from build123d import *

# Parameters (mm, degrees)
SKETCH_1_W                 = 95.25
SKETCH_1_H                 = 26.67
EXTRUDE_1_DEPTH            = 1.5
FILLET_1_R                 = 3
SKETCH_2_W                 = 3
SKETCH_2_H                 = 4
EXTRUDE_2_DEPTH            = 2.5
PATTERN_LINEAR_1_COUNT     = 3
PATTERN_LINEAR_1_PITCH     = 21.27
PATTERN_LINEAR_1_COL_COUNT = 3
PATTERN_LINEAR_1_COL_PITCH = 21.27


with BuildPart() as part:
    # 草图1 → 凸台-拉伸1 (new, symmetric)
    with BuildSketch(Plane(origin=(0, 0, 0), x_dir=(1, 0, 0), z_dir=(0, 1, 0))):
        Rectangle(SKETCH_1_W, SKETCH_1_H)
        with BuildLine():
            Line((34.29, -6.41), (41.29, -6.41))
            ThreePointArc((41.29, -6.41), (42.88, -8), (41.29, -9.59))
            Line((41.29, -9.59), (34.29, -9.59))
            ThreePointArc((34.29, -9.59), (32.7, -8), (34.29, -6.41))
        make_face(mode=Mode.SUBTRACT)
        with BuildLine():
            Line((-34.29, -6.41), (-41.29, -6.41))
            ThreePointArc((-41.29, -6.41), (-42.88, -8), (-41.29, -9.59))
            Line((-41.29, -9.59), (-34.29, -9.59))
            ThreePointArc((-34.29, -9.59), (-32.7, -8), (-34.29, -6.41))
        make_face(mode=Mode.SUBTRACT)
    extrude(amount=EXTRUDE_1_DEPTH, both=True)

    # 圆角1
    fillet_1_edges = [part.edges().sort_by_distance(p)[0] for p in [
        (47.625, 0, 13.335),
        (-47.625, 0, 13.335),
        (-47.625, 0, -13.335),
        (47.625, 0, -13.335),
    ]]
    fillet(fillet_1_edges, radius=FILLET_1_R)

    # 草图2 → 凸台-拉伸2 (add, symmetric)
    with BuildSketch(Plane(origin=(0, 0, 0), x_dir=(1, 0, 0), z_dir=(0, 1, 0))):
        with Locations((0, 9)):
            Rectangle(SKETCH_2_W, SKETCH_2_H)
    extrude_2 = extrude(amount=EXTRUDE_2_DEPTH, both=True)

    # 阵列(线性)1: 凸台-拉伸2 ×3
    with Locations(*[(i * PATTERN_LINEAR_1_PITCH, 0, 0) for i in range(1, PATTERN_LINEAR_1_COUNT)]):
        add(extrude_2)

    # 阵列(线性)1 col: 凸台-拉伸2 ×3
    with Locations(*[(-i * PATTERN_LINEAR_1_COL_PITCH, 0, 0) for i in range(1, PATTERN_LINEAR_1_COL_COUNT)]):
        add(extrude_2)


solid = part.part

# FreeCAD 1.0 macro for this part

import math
import FreeCAD as App
import Part
import Sketcher
from FreeCAD import Vector
Q = App.Units.Quantity


def edges_at(feature, points):
    """Names of the edges that pass closest to the given points."""
    edges = feature.Shape.Edges
    near = lambda p: min(range(len(edges)), key=lambda i: edges[i].distToShape(Part.Vertex(*p))[0])
    return sorted({f"Edge{near(p) + 1}" for p in points})


def add_polygon(sketch, points):
    """Adds a closed chain of lines whose ends are joined by coincident constraints."""
    first, n = sketch.GeometryCount, len(points)
    for a, b in zip(points, points[1:] + points[:1]):
        sketch.addGeometry(Part.LineSegment(App.Vector(*a, 0), App.Vector(*b, 0)), False)
    for i in range(n):
        sketch.addConstraint(Sketcher.Constraint("Coincident", first + i, 2, first + (i + 1) % n, 1))

doc = App.newDocument("Part")
body = doc.addObject("PartDesign::Body", "Body")

# Sketch on XZ plane
sketch1 = doc.addObject("Sketcher::SketchObject", "Sketch")
body.addObject(sketch1)
sketch1.AttachmentSupport = (doc.XZ_Plane, [""])
sketch1.MapMode = "FlatFace"
add_polygon(sketch1, [(-47.6, -13.3), (-47.6, 13.3), (47.6, 13.3), (47.6, -13.3)])  # lines 0-3
sketch1.addGeometry(Part.LineSegment(Vector(-41.3, 6.4, 0), Vector(-34.3, 6.4, 0)), False)  # 4
sketch1.addGeometry(Part.ArcOfCircle(Part.Circle(Vector(-34.3, 8, 0), Vector(0, 0, 1), 1.6), math.radians(-90), math.radians(90)), False)  # 5
sketch1.addGeometry(Part.LineSegment(Vector(-34.3, 9.6, 0), Vector(-41.3, 9.6, 0)), False)  # 6
sketch1.addGeometry(Part.ArcOfCircle(Part.Circle(Vector(-41.3, 8, 0), Vector(0, 0, 1), 1.6), math.radians(90), math.radians(270)), False)  # 7
sketch1.addGeometry(Part.ArcOfCircle(Part.Circle(Vector(34.3, 8, 0), Vector(0, 0, 1), 1.6), math.radians(90), math.radians(270)), False)  # 8
sketch1.addGeometry(Part.LineSegment(Vector(34.3, 6.4, 0), Vector(41.3, 6.4, 0)), False)  # 9
sketch1.addGeometry(Part.ArcOfCircle(Part.Circle(Vector(41.3, 8, 0), Vector(0, 0, 1), 1.6), math.radians(-90), math.radians(90)), False)  # 10
sketch1.addGeometry(Part.LineSegment(Vector(41.3, 9.6, 0), Vector(34.3, 9.6, 0)), False)  # 11
sketch1.addConstraint([
    Sketcher.Constraint("Tangent", 4, 2, 5, 1),
    Sketcher.Constraint("Tangent", 5, 2, 6, 1),
    Sketcher.Constraint("Tangent", 6, 2, 7, 1),
    Sketcher.Constraint("Tangent", 7, 2, 4, 1),
    Sketcher.Constraint("Tangent", 8, 2, 9, 1),
    Sketcher.Constraint("Tangent", 9, 2, 10, 1),
    Sketcher.Constraint("Tangent", 10, 2, 11, 1),
    Sketcher.Constraint("Tangent", 11, 2, 8, 1),
    Sketcher.Constraint("Vertical", 0),
    Sketcher.Constraint("Horizontal", 1),
    Sketcher.Constraint("Vertical", 2),
    Sketcher.Constraint("Horizontal", 3),
    Sketcher.Constraint("Horizontal", 4),
    Sketcher.Constraint("Horizontal", 6),
    Sketcher.Constraint("Horizontal", 9),
    Sketcher.Constraint("Horizontal", 11),
    Sketcher.Constraint("Equal", 7, 8),
    Sketcher.Constraint("Symmetric", 0, 2, 2, 2, -1, 1),
    Sketcher.Constraint("Symmetric", 5, 3, 8, 3, -2),
    Sketcher.Constraint("Equal", 6, 9),
    Sketcher.Constraint("DistanceX", 4, 1, 4, 2, Q("7 mm")),
    Sketcher.Constraint("Radius", 5, Q("1.59 mm")),
    Sketcher.Constraint("DistanceY", -1, 1, 5, 3, Q("8 mm")),
    Sketcher.Constraint("DistanceX", 1, 1, 1, 2, Q("95.25 mm")),
    Sketcher.Constraint("DistanceY", 0, 1, 0, 2, Q("26.67 mm")),
    Sketcher.Constraint("DistanceX", 5, 3, -1, 1, Q("34.29 mm")),
])
pad1 = doc.addObject("PartDesign::Pad", "Pad")
body.addObject(pad1)
pad1.Profile = sketch1
pad1.Length = 3
pad1.Midplane = True
doc.recompute()

fillet = doc.addObject("PartDesign::Fillet", "Fillet")
body.addObject(fillet)
fillet.Base = (pad1, edges_at(pad1, [
    (47.625, 0, 13.335),
    (-47.625, 0, 13.335),
    (-47.625, 0, -13.335),
    (47.625, 0, -13.335),
]))
fillet.Radius = 3

# Sketch on XZ plane
sketch2 = doc.addObject("Sketcher::SketchObject", "Sketch001")
body.addObject(sketch2)
sketch2.AttachmentSupport = (doc.XZ_Plane, [""])
sketch2.MapMode = "FlatFace"
add_polygon(sketch2, [(-1.5, -11), (-1.5, -7), (1.5, -7), (1.5, -11)])  # lines 0-3
sketch2.addConstraint([
    Sketcher.Constraint("Vertical", 0),
    Sketcher.Constraint("Horizontal", 1),
    Sketcher.Constraint("Vertical", 2),
    Sketcher.Constraint("Horizontal", 3),
    Sketcher.Constraint("DistanceX", 1, 1, 1, 2, Q("3 mm")),
    Sketcher.Constraint("DistanceY", 0, 1, 0, 2, Q("4 mm")),
    Sketcher.Constraint("DistanceY", 0, 2, -1, 1, Q("7 mm")),
    Sketcher.Constraint("DistanceX", 0, 2, -1, 1, Q("1.5 mm")),
])
pad2 = doc.addObject("PartDesign::Pad", "Pad001")
body.addObject(pad2)
pad2.Profile = sketch2
pad2.Length = 5
pad2.Midplane = True
doc.recompute()

linearpattern = doc.addObject("PartDesign::LinearPattern", "LinearPattern")
body.addObject(linearpattern)
linearpattern.Originals = [pad2]
linearpattern.Direction = (doc.X_Axis, [""])
linearpattern.Mode = "offset"
linearpattern.Offset = 21.27
linearpattern.Occurrences = 3
body.Tip = linearpattern
doc.recompute()

linearpattern2 = doc.addObject("PartDesign::LinearPattern", "LinearPattern001")
body.addObject(linearpattern2)
linearpattern2.Originals = [pad2]
linearpattern2.Direction = (doc.X_Axis, [""])
linearpattern2.Mode = "offset"
linearpattern2.Offset = 21.27
linearpattern2.Occurrences = 3
linearpattern2.Reversed = True
body.Tip = linearpattern2

doc.recompute()
